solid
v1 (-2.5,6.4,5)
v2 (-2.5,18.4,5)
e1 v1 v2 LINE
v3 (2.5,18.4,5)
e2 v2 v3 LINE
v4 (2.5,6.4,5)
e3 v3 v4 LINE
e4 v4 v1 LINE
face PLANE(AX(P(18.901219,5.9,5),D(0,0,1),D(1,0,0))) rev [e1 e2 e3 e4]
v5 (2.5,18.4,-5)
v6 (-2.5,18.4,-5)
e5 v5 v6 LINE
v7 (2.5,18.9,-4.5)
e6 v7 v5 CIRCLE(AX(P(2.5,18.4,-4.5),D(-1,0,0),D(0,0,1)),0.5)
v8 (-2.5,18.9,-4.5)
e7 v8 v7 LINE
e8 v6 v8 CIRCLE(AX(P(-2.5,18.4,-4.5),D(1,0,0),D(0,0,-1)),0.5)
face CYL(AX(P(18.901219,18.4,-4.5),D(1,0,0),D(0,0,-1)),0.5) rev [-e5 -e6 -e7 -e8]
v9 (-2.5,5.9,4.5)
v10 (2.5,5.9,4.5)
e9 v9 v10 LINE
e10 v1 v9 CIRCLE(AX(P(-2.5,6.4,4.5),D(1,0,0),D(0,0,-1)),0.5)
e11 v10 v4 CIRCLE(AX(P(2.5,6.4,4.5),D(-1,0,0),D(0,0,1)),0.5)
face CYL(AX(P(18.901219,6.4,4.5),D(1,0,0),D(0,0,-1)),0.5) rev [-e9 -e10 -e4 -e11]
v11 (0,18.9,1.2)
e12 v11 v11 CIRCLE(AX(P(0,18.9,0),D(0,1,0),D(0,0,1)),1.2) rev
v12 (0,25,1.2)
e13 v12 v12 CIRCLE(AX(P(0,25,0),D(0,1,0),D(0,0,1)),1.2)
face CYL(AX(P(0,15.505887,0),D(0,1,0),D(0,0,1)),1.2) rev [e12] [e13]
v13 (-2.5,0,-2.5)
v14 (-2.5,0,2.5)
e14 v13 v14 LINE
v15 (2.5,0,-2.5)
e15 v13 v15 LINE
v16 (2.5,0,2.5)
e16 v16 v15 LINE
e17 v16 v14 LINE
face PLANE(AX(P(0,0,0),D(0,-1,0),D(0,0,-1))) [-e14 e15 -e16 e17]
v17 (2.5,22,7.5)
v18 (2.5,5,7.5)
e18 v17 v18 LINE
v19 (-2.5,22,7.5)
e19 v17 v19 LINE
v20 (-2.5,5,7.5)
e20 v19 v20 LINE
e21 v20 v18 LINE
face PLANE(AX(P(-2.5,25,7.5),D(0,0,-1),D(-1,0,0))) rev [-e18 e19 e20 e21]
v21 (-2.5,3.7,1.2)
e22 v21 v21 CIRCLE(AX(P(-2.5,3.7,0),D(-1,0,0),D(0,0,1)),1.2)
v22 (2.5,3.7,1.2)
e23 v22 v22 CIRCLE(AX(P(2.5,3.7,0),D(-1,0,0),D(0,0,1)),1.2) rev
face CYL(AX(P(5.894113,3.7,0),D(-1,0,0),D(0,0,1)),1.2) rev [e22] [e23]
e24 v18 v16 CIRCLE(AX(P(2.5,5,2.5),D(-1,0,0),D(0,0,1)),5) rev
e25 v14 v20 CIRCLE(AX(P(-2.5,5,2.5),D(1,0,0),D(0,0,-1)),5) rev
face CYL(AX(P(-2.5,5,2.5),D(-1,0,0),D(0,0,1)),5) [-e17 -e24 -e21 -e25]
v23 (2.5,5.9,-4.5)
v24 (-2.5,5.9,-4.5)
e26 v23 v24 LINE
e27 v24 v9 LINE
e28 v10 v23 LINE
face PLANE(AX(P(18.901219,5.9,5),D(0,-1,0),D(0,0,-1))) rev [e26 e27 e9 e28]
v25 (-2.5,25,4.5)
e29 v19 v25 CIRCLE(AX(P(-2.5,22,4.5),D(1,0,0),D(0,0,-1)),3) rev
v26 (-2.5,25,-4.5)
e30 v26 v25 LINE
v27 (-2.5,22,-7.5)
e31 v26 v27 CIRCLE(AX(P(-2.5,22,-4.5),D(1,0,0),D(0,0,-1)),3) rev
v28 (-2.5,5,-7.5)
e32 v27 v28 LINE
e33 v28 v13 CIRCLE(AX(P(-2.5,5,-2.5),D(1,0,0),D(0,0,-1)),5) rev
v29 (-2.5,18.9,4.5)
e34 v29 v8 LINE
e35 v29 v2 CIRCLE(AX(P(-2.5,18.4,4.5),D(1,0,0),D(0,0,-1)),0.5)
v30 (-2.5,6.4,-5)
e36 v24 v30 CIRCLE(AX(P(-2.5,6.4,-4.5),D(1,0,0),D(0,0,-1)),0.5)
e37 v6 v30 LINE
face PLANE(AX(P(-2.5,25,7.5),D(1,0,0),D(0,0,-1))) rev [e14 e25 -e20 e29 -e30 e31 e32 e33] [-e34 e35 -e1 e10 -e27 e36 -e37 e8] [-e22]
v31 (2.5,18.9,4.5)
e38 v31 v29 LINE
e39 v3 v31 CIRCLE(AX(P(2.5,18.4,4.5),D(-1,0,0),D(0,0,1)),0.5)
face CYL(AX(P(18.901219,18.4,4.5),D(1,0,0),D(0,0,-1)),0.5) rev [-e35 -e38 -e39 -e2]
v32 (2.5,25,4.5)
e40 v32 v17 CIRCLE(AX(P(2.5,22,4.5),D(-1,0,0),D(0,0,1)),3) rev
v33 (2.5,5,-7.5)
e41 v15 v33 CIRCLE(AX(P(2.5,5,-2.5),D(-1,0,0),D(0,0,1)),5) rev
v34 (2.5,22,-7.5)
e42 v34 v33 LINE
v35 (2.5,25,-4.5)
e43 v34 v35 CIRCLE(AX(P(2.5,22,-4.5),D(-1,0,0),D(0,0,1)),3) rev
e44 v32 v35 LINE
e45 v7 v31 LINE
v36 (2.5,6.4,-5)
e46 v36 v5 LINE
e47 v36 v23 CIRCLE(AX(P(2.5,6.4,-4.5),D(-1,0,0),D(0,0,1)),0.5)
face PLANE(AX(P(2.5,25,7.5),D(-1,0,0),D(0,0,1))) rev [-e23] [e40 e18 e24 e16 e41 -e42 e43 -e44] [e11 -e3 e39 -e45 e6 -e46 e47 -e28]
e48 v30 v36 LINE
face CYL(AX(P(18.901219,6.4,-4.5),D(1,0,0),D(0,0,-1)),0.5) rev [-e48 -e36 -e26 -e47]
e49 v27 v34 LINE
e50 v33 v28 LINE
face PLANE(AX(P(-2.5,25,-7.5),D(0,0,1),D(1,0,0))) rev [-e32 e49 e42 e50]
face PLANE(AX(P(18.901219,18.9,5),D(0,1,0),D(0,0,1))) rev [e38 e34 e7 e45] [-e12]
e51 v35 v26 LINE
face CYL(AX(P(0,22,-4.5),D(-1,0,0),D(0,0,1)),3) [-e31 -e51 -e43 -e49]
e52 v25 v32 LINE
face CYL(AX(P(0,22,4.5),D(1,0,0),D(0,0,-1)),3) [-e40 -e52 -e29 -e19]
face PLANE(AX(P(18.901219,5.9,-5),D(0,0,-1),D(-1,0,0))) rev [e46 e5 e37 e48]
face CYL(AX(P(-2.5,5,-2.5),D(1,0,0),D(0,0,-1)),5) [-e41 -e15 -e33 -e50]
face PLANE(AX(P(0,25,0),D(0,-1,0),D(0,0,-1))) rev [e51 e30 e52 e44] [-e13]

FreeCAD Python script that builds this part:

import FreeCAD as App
import Part
import Sketcher

V = App.Vector
Q = App.Units.Quantity


def edges_at(feature, points):
    """Names of the edges that pass closest to the given points."""
    edges = feature.Shape.Edges
    near = lambda p: min(range(len(edges)), key=lambda i: edges[i].distToShape(Part.Vertex(*p))[0])
    return sorted({f"Edge{near(p) + 1}" for p in points})


def add_polygon(sketch, points):
    """Adds a closed chain of lines whose ends are joined by coincident constraints."""
    first, n = sketch.GeometryCount, len(points)
    for a, b in zip(points, points[1:] + points[:1]):
        sketch.addGeometry(Part.LineSegment(App.Vector(*a, 0), App.Vector(*b, 0)), False)
    for i in range(n):
        sketch.addConstraint(Sketcher.Constraint("Coincident", first + i, 2, first + (i + 1) % n, 1))

doc = App.newDocument("Part")
body = doc.addObject("PartDesign::Body", "Body")

sketch1 = body.newObject("Sketcher::SketchObject", "Sketch")
sketch1.AttachmentSupport = (doc.getObject("XZ_Plane"), [""])
sketch1.MapMode = "FlatFace"
add_polygon(sketch1, [(-2, -8), (-2, 8), (2, 8), (2, -8)])
sketch1.addConstraint(Sketcher.Constraint("Vertical", 0))
sketch1.addConstraint(Sketcher.Constraint("Horizontal", 1))
sketch1.addConstraint(Sketcher.Constraint("Vertical", 2))
sketch1.addConstraint(Sketcher.Constraint("Horizontal", 3))
sketch1.addConstraint(Sketcher.Constraint("Symmetric", 0, 2, 2, 2, -1, 1))
sketch1.addConstraint(Sketcher.Constraint("DistanceX", 1, 1, 1, 2, Q("5 mm")))
sketch1.addConstraint(Sketcher.Constraint("DistanceY", 0, 1, 0, 2, Q("15 mm")))
pad1 = body.newObject("PartDesign::Pad", "Pad")
pad1.Profile = sketch1
pad1.Length = 25
pad1.Reversed = True

sketch2 = body.newObject("Sketcher::SketchObject", "Sketch001")
sketch2.AttachmentSupport = (doc.getObject("YZ_Plane"), [""])
sketch2.MapMode = "FlatFace"
sketch2.AttachmentOffset = App.Placement(V(0, 0, -2.5), App.Rotation())
sketch2.addGeometry(Part.Circle(V(3.7, 0, 0), V(0, 0, 1), 1.2), False)
sketch2.addConstraint(Sketcher.Constraint("PointOnObject", 0, 3, -1))
sketch2.addConstraint(Sketcher.Constraint("Diameter", 0, Q("2.4 mm")))
sketch2.addConstraint(Sketcher.Constraint("DistanceX", -1, 1, 0, 3, Q("3.7 mm")))
pocket1 = body.newObject("PartDesign::Pocket", "Pocket")
pocket1.Profile = sketch2
pocket1.Length = 5
pocket1.Reversed = True

sketch3 = body.newObject("Sketcher::SketchObject", "Sketch002")
sketch3.AttachmentSupport = (doc.getObject("YZ_Plane"), [""])
sketch3.MapMode = "FlatFace"
sketch3.AttachmentOffset = App.Placement(V(0, 0, -2.5), App.Rotation())
add_polygon(sketch3, [(19, -5), (6, -5), (6, 5), (19, 5)])
sketch3.addConstraint(Sketcher.Constraint("Horizontal", 0))
sketch3.addConstraint(Sketcher.Constraint("Vertical", 1))
sketch3.addConstraint(Sketcher.Constraint("Horizontal", 2))
sketch3.addConstraint(Sketcher.Constraint("Vertical", 3))
sketch3.addConstraint(Sketcher.Constraint("DistanceX", 0, 2, 0, 1, Q("13 mm")))
sketch3.addConstraint(Sketcher.Constraint("DistanceY", 1, 1, 1, 2, Q("10 mm")))
sketch3.addConstraint(Sketcher.Constraint("DistanceY", 0, 2, -1, 1, Q("5 mm")))
sketch3.addConstraint(Sketcher.Constraint("DistanceX", -1, 1, 0, 2, Q("5.9 mm")))
pocket2 = body.newObject("PartDesign::Pocket", "Pocket001")
pocket2.Profile = sketch3
pocket2.Length = 5
pocket2.Reversed = True

sketch4 = body.newObject("Sketcher::SketchObject", "Sketch003")
sketch4.AttachmentSupport = (doc.getObject("XZ_Plane"), [""])
sketch4.MapMode = "FlatFace"
sketch4.AttachmentOffset = App.Placement(V(0, 0, -25), App.Rotation())
sketch4.addGeometry(Part.Circle(V(0, 0, 0), V(0, 0, 1), 1.2), False)
sketch4.addConstraint(Sketcher.Constraint("Coincident", 0, 3, -1, 1))
sketch4.addConstraint(Sketcher.Constraint("Diameter", 0, Q("2.4 mm")))
pocket3 = body.newObject("PartDesign::Pocket", "Pocket002")
pocket3.Profile = sketch4
pocket3.Length = 6.1
pocket3.Reversed = True
doc.recompute()

fillet = body.newObject("PartDesign::Fillet", "Fillet")
fillet.Base = (pocket3, edges_at(pocket3, [(0, 0, 7.5), (0, 0, -7.5)]))
fillet.Radius = 5
doc.recompute()

fillet2 = body.newObject("PartDesign::Fillet", "Fillet001")
fillet2.Base = (fillet, edges_at(fillet, [(0, 25, 7.5), (0, 25, -7.5)]))
fillet2.Radius = 3
doc.recompute()

fillet3 = body.newObject("PartDesign::Fillet", "Fillet002")
fillet3.Base = (fillet2, edges_at(fillet2, [
    (0, 5.9, -5),
    (0, 18.9, -5),
    (0, 18.9, 5),
    (0, 5.9, 5),
]))
fillet3.Radius = 0.5

doc.recompute()
